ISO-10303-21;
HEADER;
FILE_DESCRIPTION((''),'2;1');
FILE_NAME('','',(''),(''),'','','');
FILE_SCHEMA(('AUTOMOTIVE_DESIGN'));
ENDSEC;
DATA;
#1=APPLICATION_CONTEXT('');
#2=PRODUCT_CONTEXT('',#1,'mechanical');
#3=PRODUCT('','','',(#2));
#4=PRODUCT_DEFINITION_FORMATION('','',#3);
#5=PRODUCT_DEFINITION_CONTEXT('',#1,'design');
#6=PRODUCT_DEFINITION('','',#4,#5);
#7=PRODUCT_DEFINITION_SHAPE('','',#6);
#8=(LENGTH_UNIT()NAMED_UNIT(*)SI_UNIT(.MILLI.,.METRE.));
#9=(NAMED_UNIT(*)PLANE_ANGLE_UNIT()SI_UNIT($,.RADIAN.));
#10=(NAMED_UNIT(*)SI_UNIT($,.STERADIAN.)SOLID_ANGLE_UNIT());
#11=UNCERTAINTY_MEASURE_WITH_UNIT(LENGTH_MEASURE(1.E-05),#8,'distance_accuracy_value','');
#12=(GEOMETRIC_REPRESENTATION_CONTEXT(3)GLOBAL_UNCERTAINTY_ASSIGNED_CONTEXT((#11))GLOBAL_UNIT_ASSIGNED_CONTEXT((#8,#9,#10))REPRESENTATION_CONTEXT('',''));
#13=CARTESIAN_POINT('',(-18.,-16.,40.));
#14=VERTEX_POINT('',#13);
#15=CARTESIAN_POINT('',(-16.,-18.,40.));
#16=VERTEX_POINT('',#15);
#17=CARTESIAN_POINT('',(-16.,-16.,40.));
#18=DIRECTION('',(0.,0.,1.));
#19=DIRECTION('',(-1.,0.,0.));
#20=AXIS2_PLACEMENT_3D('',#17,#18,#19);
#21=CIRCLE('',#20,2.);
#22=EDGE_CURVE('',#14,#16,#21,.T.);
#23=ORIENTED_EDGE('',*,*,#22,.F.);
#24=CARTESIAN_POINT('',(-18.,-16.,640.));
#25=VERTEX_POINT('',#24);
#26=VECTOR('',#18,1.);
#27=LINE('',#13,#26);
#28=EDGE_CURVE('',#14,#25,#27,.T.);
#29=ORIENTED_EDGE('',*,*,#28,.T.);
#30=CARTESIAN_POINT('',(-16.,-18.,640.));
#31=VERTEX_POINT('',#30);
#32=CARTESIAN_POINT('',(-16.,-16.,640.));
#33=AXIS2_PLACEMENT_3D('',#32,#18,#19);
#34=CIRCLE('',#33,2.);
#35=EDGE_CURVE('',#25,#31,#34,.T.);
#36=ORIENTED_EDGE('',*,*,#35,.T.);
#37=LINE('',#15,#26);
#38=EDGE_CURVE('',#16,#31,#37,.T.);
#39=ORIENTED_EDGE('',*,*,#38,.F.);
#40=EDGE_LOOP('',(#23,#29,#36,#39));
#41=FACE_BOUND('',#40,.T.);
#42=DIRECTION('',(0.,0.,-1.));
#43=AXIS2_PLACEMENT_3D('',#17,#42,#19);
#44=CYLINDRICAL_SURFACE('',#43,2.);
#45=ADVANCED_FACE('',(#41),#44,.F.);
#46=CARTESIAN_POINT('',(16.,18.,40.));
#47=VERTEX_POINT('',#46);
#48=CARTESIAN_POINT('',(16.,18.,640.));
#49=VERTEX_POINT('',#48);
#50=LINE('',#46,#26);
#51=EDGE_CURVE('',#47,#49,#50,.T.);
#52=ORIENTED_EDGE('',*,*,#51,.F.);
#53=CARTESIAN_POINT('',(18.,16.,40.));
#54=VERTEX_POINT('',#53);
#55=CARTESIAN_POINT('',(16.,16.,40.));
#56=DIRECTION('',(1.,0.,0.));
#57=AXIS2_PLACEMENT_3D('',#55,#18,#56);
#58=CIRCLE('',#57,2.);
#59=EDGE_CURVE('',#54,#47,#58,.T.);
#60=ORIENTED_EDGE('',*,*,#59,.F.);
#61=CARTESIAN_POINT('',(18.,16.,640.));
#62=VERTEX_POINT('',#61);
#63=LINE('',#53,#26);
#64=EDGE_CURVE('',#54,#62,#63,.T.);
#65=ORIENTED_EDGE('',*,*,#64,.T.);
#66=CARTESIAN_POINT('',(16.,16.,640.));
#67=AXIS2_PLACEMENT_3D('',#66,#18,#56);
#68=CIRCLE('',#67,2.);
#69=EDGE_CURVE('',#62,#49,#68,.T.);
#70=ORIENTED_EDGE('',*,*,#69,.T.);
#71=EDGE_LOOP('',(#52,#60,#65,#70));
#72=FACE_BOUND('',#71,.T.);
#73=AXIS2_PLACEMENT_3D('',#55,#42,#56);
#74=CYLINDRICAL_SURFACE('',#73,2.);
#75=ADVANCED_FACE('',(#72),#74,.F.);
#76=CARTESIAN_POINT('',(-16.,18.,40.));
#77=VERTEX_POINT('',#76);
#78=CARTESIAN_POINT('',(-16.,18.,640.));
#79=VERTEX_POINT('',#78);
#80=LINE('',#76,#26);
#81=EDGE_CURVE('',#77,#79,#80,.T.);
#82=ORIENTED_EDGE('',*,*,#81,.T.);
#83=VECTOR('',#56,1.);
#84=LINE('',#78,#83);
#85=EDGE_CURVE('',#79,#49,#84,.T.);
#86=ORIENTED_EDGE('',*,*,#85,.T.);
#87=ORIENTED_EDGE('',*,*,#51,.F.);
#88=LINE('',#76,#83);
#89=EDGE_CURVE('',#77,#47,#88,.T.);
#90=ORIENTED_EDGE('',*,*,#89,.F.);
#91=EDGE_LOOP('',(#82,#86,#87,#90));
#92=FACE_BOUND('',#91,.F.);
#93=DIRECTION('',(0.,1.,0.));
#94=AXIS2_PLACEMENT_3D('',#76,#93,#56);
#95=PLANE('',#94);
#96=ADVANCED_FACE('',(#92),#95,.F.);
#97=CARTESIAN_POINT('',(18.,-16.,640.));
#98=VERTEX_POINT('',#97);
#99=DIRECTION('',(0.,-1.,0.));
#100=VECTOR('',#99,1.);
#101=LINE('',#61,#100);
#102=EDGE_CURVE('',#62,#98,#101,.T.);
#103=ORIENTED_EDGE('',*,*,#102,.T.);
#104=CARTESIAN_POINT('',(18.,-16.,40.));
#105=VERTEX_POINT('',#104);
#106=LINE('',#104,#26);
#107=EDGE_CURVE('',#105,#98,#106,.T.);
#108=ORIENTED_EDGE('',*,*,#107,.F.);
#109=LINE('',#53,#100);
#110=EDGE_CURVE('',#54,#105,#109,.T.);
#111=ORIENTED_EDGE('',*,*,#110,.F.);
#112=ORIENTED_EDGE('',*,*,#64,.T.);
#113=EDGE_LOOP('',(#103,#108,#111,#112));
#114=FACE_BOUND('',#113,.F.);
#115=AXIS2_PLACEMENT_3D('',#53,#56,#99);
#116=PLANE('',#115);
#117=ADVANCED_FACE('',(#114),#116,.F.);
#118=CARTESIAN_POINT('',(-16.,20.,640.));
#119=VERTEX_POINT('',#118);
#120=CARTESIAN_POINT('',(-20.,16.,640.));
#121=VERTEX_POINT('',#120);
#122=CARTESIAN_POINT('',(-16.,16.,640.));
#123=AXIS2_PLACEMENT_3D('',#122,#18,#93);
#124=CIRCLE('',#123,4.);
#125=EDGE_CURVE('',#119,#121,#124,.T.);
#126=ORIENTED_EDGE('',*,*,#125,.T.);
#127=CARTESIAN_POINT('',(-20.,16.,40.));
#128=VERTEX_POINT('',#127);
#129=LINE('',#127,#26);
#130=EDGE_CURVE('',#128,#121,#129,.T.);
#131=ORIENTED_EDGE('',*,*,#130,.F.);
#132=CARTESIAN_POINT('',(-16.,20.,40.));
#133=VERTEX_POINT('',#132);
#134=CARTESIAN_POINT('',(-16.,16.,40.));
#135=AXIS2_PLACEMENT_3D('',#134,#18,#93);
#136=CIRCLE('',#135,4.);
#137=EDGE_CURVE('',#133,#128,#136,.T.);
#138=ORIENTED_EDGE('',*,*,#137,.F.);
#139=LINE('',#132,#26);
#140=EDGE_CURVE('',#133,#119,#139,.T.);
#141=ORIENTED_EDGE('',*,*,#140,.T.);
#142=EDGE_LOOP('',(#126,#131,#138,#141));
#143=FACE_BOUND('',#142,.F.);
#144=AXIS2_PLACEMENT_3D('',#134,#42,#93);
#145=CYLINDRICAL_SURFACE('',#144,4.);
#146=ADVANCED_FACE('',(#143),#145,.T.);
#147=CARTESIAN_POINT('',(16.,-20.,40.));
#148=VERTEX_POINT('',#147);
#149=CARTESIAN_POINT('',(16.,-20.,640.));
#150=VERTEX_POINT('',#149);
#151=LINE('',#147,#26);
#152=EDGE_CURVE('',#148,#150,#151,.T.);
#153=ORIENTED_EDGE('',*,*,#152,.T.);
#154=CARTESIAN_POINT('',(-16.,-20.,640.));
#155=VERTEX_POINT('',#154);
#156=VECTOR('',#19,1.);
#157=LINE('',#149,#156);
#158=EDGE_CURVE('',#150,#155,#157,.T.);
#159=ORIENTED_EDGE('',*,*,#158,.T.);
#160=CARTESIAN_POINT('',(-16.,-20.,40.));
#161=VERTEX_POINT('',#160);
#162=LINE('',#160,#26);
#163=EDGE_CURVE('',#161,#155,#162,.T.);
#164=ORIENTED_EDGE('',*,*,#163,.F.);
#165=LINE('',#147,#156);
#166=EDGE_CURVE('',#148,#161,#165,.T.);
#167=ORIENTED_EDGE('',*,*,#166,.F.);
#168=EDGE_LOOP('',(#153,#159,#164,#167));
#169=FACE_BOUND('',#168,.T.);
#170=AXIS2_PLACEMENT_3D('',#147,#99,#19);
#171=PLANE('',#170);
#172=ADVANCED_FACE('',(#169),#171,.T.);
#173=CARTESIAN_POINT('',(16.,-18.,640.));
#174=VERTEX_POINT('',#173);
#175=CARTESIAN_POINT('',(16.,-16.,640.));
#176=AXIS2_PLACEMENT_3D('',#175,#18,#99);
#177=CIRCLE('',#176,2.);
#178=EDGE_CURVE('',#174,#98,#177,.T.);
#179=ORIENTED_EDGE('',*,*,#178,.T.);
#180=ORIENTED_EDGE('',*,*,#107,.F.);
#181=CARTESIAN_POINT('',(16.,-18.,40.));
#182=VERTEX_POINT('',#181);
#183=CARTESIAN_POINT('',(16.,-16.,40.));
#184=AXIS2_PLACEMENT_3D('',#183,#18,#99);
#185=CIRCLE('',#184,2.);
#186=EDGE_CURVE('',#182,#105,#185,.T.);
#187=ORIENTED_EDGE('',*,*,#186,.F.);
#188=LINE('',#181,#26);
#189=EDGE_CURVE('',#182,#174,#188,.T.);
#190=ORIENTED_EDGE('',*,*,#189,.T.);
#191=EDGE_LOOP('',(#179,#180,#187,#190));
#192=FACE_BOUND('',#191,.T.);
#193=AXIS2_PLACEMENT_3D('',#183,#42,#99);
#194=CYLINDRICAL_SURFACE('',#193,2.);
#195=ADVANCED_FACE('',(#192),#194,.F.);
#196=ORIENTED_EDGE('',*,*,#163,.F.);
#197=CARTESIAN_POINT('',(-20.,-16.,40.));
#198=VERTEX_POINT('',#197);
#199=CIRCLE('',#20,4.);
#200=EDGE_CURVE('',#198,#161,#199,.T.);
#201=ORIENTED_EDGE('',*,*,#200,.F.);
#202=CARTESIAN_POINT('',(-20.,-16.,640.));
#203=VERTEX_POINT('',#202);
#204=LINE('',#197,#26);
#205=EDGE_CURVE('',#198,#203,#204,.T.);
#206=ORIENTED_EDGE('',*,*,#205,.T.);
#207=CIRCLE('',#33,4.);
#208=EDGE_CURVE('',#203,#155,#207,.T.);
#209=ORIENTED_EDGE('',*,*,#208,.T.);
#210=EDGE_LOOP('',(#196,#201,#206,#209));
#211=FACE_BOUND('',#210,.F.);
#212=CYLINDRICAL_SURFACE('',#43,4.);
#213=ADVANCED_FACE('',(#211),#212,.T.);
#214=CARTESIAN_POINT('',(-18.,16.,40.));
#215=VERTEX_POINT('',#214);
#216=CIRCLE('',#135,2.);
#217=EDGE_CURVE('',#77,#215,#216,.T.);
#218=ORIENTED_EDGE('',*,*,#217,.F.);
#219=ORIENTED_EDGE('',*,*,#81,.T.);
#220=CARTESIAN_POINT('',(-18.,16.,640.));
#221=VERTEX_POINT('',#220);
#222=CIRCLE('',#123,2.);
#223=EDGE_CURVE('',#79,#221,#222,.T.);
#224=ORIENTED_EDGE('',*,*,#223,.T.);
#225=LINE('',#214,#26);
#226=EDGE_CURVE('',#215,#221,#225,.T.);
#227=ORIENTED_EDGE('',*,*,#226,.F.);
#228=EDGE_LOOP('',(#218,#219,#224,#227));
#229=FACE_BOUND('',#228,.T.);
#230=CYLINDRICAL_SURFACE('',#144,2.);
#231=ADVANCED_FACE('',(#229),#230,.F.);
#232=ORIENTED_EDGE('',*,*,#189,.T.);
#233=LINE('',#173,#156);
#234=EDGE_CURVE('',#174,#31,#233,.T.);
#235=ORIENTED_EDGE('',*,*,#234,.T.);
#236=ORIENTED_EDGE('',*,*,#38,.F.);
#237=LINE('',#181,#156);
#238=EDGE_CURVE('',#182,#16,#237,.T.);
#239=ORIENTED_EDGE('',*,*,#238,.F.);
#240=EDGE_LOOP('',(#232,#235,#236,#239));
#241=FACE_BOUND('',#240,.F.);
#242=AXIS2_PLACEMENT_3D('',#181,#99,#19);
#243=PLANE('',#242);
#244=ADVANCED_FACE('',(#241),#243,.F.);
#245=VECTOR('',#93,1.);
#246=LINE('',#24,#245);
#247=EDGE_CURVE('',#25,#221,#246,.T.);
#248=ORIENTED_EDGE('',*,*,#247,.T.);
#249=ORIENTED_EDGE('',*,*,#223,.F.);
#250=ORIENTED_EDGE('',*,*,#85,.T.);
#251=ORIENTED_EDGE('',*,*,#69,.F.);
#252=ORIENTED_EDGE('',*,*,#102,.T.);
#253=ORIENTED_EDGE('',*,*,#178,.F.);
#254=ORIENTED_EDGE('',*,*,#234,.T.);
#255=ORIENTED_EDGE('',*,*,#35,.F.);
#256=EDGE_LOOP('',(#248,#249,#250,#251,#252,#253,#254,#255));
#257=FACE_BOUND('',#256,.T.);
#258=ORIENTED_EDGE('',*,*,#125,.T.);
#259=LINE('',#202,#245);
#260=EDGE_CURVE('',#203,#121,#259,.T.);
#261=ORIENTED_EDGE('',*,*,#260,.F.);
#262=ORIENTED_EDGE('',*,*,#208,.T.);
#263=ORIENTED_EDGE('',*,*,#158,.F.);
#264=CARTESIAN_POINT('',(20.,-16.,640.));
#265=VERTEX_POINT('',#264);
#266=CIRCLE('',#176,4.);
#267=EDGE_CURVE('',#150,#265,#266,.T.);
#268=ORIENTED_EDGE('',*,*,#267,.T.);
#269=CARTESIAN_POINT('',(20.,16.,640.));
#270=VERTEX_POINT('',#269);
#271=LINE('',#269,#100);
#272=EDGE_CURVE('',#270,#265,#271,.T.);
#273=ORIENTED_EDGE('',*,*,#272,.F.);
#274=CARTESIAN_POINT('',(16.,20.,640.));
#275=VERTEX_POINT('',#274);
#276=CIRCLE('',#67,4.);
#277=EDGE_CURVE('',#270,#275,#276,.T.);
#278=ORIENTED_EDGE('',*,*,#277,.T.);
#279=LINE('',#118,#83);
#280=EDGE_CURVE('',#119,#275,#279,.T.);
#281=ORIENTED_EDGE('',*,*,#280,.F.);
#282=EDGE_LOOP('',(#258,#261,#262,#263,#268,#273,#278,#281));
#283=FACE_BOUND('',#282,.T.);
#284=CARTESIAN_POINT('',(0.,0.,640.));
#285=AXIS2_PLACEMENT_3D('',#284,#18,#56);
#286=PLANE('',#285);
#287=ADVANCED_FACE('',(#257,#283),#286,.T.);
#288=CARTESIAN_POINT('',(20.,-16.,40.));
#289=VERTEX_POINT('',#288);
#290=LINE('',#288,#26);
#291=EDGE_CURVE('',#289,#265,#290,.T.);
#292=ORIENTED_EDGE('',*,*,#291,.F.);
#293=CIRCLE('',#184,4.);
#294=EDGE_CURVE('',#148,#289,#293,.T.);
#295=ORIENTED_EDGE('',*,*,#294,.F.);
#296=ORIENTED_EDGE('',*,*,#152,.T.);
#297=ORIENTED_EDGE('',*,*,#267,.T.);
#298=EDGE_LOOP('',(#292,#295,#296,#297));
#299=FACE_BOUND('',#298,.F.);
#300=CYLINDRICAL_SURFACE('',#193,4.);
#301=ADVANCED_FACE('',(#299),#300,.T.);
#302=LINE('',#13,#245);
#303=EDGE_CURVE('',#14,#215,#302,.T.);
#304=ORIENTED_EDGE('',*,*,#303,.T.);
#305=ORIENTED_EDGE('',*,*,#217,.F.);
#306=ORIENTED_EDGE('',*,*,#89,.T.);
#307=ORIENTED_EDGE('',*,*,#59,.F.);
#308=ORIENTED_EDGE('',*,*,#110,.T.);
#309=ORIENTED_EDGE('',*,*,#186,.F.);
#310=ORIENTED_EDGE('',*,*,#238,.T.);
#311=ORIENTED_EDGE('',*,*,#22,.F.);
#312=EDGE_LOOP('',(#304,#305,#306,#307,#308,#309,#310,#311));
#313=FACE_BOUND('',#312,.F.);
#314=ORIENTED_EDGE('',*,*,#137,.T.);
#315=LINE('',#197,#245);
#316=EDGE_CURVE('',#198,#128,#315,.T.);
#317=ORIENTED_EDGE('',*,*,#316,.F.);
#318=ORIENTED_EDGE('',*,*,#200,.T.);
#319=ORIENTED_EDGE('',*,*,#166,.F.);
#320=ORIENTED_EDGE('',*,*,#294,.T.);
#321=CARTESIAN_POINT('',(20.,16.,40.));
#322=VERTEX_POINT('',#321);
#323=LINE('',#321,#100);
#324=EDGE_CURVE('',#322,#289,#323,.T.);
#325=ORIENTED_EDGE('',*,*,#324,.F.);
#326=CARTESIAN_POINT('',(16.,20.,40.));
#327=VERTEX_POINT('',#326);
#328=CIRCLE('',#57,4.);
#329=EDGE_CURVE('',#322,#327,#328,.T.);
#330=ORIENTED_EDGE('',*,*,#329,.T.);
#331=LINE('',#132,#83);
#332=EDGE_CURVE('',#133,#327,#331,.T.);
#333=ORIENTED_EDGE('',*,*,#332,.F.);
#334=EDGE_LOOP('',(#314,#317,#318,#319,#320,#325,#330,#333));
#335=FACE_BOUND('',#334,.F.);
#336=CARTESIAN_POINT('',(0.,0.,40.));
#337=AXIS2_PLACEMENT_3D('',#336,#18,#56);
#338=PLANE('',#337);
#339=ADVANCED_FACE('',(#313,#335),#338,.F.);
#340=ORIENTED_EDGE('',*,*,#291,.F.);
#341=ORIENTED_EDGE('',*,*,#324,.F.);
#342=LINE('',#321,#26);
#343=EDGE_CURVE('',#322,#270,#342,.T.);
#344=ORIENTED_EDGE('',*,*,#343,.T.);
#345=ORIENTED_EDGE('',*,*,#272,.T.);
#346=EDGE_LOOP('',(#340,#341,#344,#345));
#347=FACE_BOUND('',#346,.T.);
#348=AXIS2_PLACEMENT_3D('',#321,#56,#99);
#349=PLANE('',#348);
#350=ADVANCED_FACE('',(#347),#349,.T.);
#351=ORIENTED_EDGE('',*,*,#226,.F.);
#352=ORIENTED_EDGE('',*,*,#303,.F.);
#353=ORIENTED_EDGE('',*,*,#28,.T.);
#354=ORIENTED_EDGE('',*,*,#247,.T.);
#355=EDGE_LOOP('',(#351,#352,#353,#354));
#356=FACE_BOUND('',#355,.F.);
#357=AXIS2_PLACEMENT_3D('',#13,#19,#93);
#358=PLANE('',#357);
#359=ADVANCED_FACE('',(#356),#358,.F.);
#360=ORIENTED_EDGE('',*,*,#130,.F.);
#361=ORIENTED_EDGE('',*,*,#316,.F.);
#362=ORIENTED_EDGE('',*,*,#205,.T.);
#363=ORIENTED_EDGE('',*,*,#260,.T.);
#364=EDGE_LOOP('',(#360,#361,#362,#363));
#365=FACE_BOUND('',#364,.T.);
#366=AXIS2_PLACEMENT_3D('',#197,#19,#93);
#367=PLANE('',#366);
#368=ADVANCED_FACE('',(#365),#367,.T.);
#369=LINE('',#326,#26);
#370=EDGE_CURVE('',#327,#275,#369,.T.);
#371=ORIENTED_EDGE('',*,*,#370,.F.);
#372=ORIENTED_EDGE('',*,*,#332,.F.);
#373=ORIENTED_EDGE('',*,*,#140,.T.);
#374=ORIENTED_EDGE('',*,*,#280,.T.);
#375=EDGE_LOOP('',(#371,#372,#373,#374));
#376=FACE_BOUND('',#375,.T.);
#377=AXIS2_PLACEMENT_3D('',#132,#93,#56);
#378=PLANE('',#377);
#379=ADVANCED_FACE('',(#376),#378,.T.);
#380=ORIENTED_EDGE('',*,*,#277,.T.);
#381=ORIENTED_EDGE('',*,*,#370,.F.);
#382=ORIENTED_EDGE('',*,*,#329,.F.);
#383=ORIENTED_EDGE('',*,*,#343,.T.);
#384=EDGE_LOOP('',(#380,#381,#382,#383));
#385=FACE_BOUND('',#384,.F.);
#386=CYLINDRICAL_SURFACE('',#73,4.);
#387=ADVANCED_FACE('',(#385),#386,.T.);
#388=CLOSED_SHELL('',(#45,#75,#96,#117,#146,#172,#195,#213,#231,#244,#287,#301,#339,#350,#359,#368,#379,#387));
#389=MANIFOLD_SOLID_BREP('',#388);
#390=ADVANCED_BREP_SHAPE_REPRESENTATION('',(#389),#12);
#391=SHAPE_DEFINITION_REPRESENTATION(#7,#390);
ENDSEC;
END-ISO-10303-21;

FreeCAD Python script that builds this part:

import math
import FreeCAD as App
import Part
import Sketcher

V = App.Vector

doc = App.newDocument("Part")
body = doc.addObject("PartDesign::Body", "Body")

sketch1 = doc.addObject("Sketcher::SketchObject", "Sketch")
body.addObject(sketch1)
sketch1.AttachmentSupport = (doc.XY_Plane, [""])
sketch1.MapMode = "FlatFace"
sketch1.AttachmentOffset = App.Placement(V(0, 0, 40), App.Rotation())
sketch1.addGeometry([
    Part.LineSegment(V(-20, 16, 0), V(-20, -16, 0)),
    Part.ArcOfCircle(Part.Circle(V(-16, -16, 0), V(0, 0, 1), 4), math.radians(180), math.radians(270)),
    Part.LineSegment(V(-16, -20, 0), V(16, -20, 0)),
    Part.ArcOfCircle(Part.Circle(V(16, -16, 0), V(0, 0, 1), 4), math.radians(-90), math.radians(0)),
    Part.LineSegment(V(20, -16, 0), V(20, 16, 0)),
    Part.ArcOfCircle(Part.Circle(V(16, 16, 0), V(0, 0, 1), 4), math.radians(0), math.radians(90)),
    Part.LineSegment(V(16, 20, 0), V(-16, 20, 0)),
    Part.ArcOfCircle(Part.Circle(V(-16, 16, 0), V(0, 0, 1), 4), math.radians(90), math.radians(180)),
    Part.ArcOfCircle(Part.Circle(V(-16, 16, 0), V(0, 0, 1), 2), math.radians(90), math.radians(180)),
    Part.LineSegment(V(-16, 18, 0), V(16, 18, 0)),
    Part.ArcOfCircle(Part.Circle(V(16, 16, 0), V(0, 0, 1), 2), math.radians(0), math.radians(90)),
    Part.LineSegment(V(18, 16, 0), V(18, -16, 0)),
    Part.ArcOfCircle(Part.Circle(V(16, -16, 0), V(0, 0, 1), 2), math.radians(-90), math.radians(0)),
    Part.LineSegment(V(16, -18, 0), V(-16, -18, 0)),
    Part.ArcOfCircle(Part.Circle(V(-16, -16, 0), V(0, 0, 1), 2), math.radians(180), math.radians(270)),
    Part.LineSegment(V(-18, -16, 0), V(-18, 16, 0)),
], False)
sketch1.addConstraint([
    Sketcher.Constraint("Tangent", 0, 2, 1, 1),
    Sketcher.Constraint("Tangent", 1, 2, 2, 1),
    Sketcher.Constraint("Tangent", 2, 2, 3, 1),
    Sketcher.Constraint("Tangent", 3, 2, 4, 1),
    Sketcher.Constraint("Tangent", 4, 2, 5, 1),
    Sketcher.Constraint("Tangent", 5, 2, 6, 1),
    Sketcher.Constraint("Tangent", 6, 2, 7, 1),
    Sketcher.Constraint("Tangent", 7, 2, 0, 1),
    Sketcher.Constraint("Tangent", 8, 1, 9, 1),
    Sketcher.Constraint("Tangent", 9, 2, 10, 2),
    Sketcher.Constraint("Tangent", 10, 1, 11, 1),
    Sketcher.Constraint("Tangent", 11, 2, 12, 2),
    Sketcher.Constraint("Tangent", 12, 1, 13, 1),
    Sketcher.Constraint("Tangent", 13, 2, 14, 2),
    Sketcher.Constraint("Tangent", 14, 1, 15, 1),
    Sketcher.Constraint("Tangent", 15, 2, 8, 2),
    Sketcher.Constraint("Vertical", 0),
    Sketcher.Constraint("Horizontal", 2),
    Sketcher.Constraint("Vertical", 4),
    Sketcher.Constraint("Horizontal", 6),
    Sketcher.Constraint("Horizontal", 9),
    Sketcher.Constraint("Vertical", 11),
    Sketcher.Constraint("Horizontal", 13),
    Sketcher.Constraint("Vertical", 15),
    Sketcher.Constraint("Coincident", 8, 3, 7, 3),
    Sketcher.Constraint("Coincident", 10, 3, 5, 3),
    Sketcher.Constraint("Coincident", 12, 3, 3, 3),
    Sketcher.Constraint("Equal", 1, 3),
    Sketcher.Constraint("Equal", 3, 5),
    Sketcher.Constraint("Equal", 5, 7),
    Sketcher.Constraint("Equal", 12, 14),
    Sketcher.Constraint("Symmetric", 1, 3, 5, 3, -1, 1),
    Sketcher.Constraint("Equal", 13, 0),
    Sketcher.Constraint("Radius", 1, 4.0),
    Sketcher.Constraint("Radius", 8, 2.0),
    Sketcher.Constraint("DistanceX", 0, 2, -1, 1, 20.0),
])
pad1 = doc.addObject("PartDesign::Pad", "Pad")
body.addObject(pad1)
pad1.Profile = sketch1
pad1.Length = 600

doc.recompute()
